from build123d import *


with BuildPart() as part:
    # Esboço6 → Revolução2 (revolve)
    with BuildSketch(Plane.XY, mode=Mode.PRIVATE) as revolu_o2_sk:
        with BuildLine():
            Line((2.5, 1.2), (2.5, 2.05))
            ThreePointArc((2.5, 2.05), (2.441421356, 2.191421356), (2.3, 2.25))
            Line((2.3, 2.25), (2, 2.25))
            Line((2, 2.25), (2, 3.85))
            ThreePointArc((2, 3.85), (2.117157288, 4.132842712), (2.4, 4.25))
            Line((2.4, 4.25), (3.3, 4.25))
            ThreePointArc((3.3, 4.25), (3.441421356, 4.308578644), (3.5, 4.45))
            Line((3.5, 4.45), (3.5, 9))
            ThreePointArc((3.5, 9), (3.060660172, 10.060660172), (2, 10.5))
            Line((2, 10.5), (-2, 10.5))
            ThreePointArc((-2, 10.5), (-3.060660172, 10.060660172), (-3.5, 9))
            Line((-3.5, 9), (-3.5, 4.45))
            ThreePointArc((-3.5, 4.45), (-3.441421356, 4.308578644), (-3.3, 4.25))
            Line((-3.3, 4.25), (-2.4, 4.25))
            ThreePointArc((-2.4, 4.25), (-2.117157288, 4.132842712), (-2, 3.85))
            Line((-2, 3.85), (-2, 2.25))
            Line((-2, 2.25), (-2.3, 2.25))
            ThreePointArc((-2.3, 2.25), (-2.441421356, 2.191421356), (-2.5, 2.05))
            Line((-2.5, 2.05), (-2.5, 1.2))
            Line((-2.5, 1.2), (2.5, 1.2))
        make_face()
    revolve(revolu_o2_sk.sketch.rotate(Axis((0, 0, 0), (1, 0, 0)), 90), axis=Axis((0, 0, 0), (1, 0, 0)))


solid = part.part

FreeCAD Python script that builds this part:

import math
import FreeCAD as App
import Part
import Sketcher

V = App.Vector
Q = App.Units.Quantity

doc = App.newDocument("Part")
body = doc.addObject("PartDesign::Body", "Body")

# Sketch on XY plane
sketch1 = body.newObject("Sketcher::SketchObject", "Sketch")
sketch1.AttachmentSupport = (doc.getObject("XY_Plane"), [""])
sketch1.MapMode = "FlatFace"
sketch1.addGeometry(Part.LineSegment(V(2.5, 1.2, 0), V(2.5, 2.05, 0)), False)
sketch1.addGeometry(Part.ArcOfCircle(Part.Circle(V(2.3, 2.05, 0), V(0, 0, 1), 0.2), math.radians(0), math.radians(90)), False)
sketch1.addGeometry(Part.LineSegment(V(2.3, 2.25, 0), V(2, 2.25, 0)), False)
sketch1.addGeometry(Part.LineSegment(V(2, 2.25, 0), V(2, 3.85, 0)), False)
sketch1.addGeometry(Part.ArcOfCircle(Part.Circle(V(2.4, 3.85, 0), V(0, 0, 1), 0.4), math.radians(90), math.radians(180)), False)
sketch1.addGeometry(Part.LineSegment(V(2.4, 4.25, 0), V(3.3, 4.25, 0)), False)
sketch1.addGeometry(Part.ArcOfCircle(Part.Circle(V(3.3, 4.45, 0), V(0, 0, 1), 0.2), math.radians(-90), math.radians(0)), False)
sketch1.addGeometry(Part.LineSegment(V(3.5, 4.45, 0), V(3.5, 9, 0)), False)
sketch1.addGeometry(Part.ArcOfCircle(Part.Circle(V(2, 9, 0), V(0, 0, 1), 1.5), math.radians(0), math.radians(90)), False)
sketch1.addGeometry(Part.LineSegment(V(2, 10.5, 0), V(-2, 10.5, 0)), False)
sketch1.addGeometry(Part.ArcOfCircle(Part.Circle(V(-2, 9, 0), V(0, 0, 1), 1.5), math.radians(90), math.radians(180)), False)
sketch1.addGeometry(Part.LineSegment(V(-3.5, 9, 0), V(-3.5, 4.45, 0)), False)
sketch1.addGeometry(Part.ArcOfCircle(Part.Circle(V(-3.3, 4.45, 0), V(0, 0, 1), 0.2), math.radians(-180), math.radians(-90)), False)
sketch1.addGeometry(Part.LineSegment(V(-3.3, 4.25, 0), V(-2.4, 4.25, 0)), False)
sketch1.addGeometry(Part.ArcOfCircle(Part.Circle(V(-2.4, 3.85, 0), V(0, 0, 1), 0.4), math.radians(0), math.radians(90)), False)
sketch1.addGeometry(Part.LineSegment(V(-2, 3.85, 0), V(-2, 2.25, 0)), False)
sketch1.addGeometry(Part.LineSegment(V(-2, 2.25, 0), V(-2.3, 2.25, 0)), False)
sketch1.addGeometry(Part.ArcOfCircle(Part.Circle(V(-2.3, 2.05, 0), V(0, 0, 1), 0.2), math.radians(90), math.radians(180)), False)
sketch1.addGeometry(Part.LineSegment(V(-2.5, 2.05, 0), V(-2.5, 1.2, 0)), False)
sketch1.addGeometry(Part.LineSegment(V(-2.5, 1.2, 0), V(2.5, 1.2, 0)), False)
sketch1.addConstraint(Sketcher.Constraint("Tangent", 0, 2, 1, 1))
sketch1.addConstraint(Sketcher.Constraint("Tangent", 1, 2, 2, 1))
sketch1.addConstraint(Sketcher.Constraint("Coincident", 2, 2, 3, 1))
sketch1.addConstraint(Sketcher.Constraint("Tangent", 3, 2, 4, 2))
sketch1.addConstraint(Sketcher.Constraint("Tangent", 4, 1, 5, 1))
sketch1.addConstraint(Sketcher.Constraint("Tangent", 5, 2, 6, 1))
sketch1.addConstraint(Sketcher.Constraint("Tangent", 6, 2, 7, 1))
sketch1.addConstraint(Sketcher.Constraint("Tangent", 7, 2, 8, 1))
sketch1.addConstraint(Sketcher.Constraint("Tangent", 8, 2, 9, 1))
sketch1.addConstraint(Sketcher.Constraint("Tangent", 9, 2, 10, 1))
sketch1.addConstraint(Sketcher.Constraint("Tangent", 10, 2, 11, 1))
sketch1.addConstraint(Sketcher.Constraint("Tangent", 11, 2, 12, 1))
sketch1.addConstraint(Sketcher.Constraint("Tangent", 12, 2, 13, 1))
sketch1.addConstraint(Sketcher.Constraint("Tangent", 13, 2, 14, 2))
sketch1.addConstraint(Sketcher.Constraint("Tangent", 14, 1, 15, 1))
sketch1.addConstraint(Sketcher.Constraint("Coincident", 15, 2, 16, 1))
sketch1.addConstraint(Sketcher.Constraint("Tangent", 16, 2, 17, 1))
sketch1.addConstraint(Sketcher.Constraint("Tangent", 17, 2, 18, 1))
sketch1.addConstraint(Sketcher.Constraint("Coincident", 18, 2, 19, 1))
sketch1.addConstraint(Sketcher.Constraint("Coincident", 19, 2, 0, 1))
sketch1.addConstraint(Sketcher.Constraint("Vertical", 0))
sketch1.addConstraint(Sketcher.Constraint("Horizontal", 2))
sketch1.addConstraint(Sketcher.Constraint("Vertical", 3))
sketch1.addConstraint(Sketcher.Constraint("Horizontal", 5))
sketch1.addConstraint(Sketcher.Constraint("Vertical", 7))
sketch1.addConstraint(Sketcher.Constraint("Horizontal", 9))
sketch1.addConstraint(Sketcher.Constraint("Vertical", 11))
sketch1.addConstraint(Sketcher.Constraint("Horizontal", 13))
sketch1.addConstraint(Sketcher.Constraint("Vertical", 15))
sketch1.addConstraint(Sketcher.Constraint("Horizontal", 16))
sketch1.addConstraint(Sketcher.Constraint("Vertical", 18))
sketch1.addConstraint(Sketcher.Constraint("Horizontal", 19))
sketch1.addConstraint(Sketcher.Constraint("Equal", 1, 6))
sketch1.addConstraint(Sketcher.Constraint("Equal", 8, 10))
sketch1.addConstraint(Sketcher.Constraint("Equal", 6, 12))
sketch1.addConstraint(Sketcher.Constraint("Equal", 4, 14))
sketch1.addConstraint(Sketcher.Constraint("Equal", 12, 17))
sketch1.addConstraint(Sketcher.Constraint("Symmetric", 6, 3, 12, 3, -2))
sketch1.addConstraint(Sketcher.Constraint("Symmetric", 1, 3, 17, 3, -2))
sketch1.addConstraint(Sketcher.Constraint("Vertical", 8, 3, 2, 2))
sketch1.addConstraint(Sketcher.Constraint("Vertical", 9, 2, 14, 1))
sketch1.addConstraint(Sketcher.Constraint("Radius", 1, Q("0.2 mm")))
sketch1.addConstraint(Sketcher.Constraint("Radius", 4, Q("0.4 mm")))
sketch1.addConstraint(Sketcher.Constraint("Radius", 8, Q("1.5 mm")))
sketch1.addConstraint(Sketcher.Constraint("DistanceX", 9, 2, 9, 1, Q("4 mm")))
sketch1.addConstraint(Sketcher.Constraint("DistanceX", 19, 1, 19, 2, Q("5 mm")))
sketch1.addConstraint(Sketcher.Constraint("DistanceY", 3, 1, 3, 2, Q("1.6 mm")))
sketch1.addConstraint(Sketcher.Constraint("DistanceY", -1, 1, 8, 3, Q("9 mm")))
sketch1.addConstraint(Sketcher.Constraint("DistanceY", 0, 1, 0, 2, Q("0.85 mm")))
sketch1.addConstraint(Sketcher.Constraint("DistanceY", 7, 1, 7, 2, Q("4.55 mm")))
revolution = body.newObject("PartDesign::Revolution", "Revolution")
revolution.Profile = sketch1
revolution.ReferenceAxis = (sketch1, ["H_Axis"])
revolution.Angle = 360

doc.recompute()
